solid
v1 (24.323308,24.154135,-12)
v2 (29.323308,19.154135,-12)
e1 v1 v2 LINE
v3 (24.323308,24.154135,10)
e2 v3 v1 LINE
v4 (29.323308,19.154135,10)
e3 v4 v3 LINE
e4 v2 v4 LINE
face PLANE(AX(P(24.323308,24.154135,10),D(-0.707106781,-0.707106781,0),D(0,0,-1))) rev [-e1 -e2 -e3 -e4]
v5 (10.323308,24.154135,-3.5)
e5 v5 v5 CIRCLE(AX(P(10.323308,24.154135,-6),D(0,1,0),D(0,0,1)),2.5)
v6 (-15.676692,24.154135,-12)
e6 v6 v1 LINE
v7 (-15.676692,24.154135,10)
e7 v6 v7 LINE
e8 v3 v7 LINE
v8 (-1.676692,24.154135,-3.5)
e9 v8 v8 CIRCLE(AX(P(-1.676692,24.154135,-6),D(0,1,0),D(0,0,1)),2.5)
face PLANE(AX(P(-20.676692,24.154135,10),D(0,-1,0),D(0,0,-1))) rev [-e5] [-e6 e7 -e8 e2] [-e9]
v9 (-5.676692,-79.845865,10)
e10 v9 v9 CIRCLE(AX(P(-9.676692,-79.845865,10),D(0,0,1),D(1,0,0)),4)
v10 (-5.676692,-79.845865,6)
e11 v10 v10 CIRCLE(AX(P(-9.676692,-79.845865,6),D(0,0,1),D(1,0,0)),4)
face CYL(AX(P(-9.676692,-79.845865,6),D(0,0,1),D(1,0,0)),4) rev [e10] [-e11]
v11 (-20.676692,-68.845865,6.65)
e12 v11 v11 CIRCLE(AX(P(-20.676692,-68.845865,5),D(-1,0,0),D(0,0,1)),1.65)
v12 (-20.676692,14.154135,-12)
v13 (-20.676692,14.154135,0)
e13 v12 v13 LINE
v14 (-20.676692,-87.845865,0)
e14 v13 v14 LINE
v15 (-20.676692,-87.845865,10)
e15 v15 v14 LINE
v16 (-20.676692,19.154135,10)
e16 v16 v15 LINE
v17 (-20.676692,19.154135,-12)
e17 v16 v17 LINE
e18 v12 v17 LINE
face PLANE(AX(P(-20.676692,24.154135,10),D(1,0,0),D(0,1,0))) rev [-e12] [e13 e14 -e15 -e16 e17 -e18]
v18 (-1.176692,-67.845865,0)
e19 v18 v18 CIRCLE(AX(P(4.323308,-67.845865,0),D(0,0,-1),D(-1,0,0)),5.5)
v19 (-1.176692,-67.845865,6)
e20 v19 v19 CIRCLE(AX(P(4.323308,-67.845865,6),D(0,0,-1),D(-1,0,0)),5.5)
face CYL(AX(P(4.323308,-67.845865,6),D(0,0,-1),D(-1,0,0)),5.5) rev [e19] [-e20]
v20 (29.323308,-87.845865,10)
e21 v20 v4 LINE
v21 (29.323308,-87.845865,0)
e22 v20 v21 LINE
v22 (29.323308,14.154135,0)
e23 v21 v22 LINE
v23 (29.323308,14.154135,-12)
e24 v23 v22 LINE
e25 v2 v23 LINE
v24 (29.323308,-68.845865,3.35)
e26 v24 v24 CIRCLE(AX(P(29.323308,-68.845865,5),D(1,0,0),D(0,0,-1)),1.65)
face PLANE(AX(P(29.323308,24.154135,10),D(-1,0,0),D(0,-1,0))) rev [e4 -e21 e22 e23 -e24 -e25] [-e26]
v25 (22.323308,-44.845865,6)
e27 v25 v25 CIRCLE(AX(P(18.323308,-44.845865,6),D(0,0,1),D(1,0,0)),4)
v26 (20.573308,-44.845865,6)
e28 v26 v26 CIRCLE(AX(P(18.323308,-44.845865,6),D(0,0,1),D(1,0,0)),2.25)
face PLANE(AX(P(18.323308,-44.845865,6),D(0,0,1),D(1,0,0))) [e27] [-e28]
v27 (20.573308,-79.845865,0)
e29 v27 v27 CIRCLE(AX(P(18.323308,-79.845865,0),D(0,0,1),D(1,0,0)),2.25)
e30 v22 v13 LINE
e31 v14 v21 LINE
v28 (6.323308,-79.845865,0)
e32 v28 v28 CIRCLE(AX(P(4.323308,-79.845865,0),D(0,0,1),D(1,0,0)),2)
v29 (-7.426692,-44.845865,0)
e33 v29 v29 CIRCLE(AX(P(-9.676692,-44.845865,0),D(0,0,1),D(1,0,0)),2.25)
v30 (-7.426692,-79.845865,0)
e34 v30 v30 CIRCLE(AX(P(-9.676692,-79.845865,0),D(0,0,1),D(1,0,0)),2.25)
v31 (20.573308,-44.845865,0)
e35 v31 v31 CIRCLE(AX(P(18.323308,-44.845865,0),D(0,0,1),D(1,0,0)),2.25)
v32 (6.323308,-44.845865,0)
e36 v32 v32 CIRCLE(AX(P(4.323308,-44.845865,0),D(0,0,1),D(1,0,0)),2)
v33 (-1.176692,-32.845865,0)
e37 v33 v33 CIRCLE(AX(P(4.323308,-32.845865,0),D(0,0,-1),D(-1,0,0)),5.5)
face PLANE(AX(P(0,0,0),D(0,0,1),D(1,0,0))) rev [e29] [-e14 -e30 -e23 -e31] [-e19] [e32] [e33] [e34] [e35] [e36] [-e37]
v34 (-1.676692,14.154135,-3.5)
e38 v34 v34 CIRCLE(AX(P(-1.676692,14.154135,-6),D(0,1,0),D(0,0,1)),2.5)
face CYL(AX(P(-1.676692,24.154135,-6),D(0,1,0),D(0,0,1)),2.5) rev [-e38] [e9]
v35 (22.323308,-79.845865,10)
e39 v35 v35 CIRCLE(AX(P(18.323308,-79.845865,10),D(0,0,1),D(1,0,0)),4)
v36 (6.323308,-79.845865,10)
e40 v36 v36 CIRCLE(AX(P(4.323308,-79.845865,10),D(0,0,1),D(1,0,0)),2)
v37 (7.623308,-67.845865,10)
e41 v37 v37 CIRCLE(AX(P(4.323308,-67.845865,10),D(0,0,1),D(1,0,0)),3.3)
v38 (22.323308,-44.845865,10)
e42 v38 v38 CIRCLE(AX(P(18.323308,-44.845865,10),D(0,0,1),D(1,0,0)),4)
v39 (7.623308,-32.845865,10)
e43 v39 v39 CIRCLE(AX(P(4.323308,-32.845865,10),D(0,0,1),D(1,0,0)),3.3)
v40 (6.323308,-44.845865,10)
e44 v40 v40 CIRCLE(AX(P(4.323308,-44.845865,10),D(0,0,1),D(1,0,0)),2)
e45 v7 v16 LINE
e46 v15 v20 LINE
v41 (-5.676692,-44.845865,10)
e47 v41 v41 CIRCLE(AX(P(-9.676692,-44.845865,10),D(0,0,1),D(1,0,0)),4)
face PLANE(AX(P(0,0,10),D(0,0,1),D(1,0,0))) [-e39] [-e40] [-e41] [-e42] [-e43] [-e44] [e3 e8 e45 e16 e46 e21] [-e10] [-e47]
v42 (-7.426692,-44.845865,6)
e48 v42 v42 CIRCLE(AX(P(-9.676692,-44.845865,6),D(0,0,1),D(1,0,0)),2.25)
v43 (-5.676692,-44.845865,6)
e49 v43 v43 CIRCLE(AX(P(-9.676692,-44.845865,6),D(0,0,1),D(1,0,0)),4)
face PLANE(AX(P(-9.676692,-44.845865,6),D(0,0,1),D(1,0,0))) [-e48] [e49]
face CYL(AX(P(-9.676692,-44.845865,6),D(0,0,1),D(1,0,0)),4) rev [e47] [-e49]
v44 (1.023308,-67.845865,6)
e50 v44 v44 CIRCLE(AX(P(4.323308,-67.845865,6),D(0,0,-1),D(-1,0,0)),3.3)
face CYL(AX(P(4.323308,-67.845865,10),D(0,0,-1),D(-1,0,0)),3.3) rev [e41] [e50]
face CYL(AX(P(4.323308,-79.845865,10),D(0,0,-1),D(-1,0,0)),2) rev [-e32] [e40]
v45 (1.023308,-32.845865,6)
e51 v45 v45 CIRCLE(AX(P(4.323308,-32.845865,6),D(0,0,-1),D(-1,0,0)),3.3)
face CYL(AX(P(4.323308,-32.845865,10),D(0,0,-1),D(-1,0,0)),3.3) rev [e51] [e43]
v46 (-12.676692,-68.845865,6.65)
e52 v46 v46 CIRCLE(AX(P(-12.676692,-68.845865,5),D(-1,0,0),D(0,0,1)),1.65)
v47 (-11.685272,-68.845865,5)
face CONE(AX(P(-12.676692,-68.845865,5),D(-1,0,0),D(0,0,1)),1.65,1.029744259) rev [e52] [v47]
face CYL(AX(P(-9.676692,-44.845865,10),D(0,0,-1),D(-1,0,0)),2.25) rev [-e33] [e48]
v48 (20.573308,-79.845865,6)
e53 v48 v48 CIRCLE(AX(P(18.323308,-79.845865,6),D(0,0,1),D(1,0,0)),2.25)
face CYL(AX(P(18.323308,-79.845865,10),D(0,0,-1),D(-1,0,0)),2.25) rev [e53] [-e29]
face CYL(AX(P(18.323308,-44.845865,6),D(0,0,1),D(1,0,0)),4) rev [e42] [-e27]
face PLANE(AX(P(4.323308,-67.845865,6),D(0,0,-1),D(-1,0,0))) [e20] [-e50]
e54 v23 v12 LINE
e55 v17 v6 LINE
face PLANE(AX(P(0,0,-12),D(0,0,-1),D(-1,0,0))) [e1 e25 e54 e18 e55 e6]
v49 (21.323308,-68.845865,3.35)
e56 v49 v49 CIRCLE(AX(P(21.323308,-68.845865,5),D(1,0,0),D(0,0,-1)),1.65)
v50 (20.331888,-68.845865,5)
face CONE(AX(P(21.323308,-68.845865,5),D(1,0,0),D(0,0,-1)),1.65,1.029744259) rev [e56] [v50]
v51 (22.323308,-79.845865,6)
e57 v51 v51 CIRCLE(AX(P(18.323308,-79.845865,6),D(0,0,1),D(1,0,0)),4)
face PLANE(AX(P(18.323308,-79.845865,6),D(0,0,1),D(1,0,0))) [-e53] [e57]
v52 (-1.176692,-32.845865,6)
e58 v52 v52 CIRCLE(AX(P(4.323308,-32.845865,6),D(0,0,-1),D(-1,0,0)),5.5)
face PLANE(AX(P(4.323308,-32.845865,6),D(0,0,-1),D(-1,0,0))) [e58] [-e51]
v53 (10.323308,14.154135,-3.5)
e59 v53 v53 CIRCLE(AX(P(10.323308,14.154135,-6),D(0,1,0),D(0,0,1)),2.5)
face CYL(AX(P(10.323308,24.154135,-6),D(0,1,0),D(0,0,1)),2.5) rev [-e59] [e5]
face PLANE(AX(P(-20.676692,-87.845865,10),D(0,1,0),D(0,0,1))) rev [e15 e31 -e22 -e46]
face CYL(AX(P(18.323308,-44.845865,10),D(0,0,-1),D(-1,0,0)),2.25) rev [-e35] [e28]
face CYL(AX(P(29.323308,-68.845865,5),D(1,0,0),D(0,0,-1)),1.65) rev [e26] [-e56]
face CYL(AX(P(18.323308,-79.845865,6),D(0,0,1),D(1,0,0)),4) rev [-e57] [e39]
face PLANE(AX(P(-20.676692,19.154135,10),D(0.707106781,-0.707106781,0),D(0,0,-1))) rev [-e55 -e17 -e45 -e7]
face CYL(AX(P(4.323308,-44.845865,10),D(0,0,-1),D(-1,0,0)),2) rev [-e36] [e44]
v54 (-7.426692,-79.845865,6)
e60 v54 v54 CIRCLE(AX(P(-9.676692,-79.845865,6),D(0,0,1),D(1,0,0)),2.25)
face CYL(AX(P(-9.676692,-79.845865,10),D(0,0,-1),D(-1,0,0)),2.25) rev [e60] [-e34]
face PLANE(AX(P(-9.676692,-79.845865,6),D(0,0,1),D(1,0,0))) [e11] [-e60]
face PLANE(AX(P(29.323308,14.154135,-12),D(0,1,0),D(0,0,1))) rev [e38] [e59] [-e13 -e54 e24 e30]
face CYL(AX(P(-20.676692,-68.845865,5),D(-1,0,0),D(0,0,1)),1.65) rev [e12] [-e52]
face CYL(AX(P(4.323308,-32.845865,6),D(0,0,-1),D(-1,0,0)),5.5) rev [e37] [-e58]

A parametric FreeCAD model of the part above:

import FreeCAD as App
import Part
import Sketcher
from FreeCAD import Vector


def edges_at(feature, points):
    """Names of the edges that pass closest to the given points."""
    edges = feature.Shape.Edges
    near = lambda p: min(range(len(edges)), key=lambda i: edges[i].distToShape(Part.Vertex(*p))[0])
    return sorted({f"Edge{near(p) + 1}" for p in points})

doc = App.newDocument("Part")
body = doc.addObject("PartDesign::Body", "Body")

sketch1 = body.newObject("Sketcher::SketchObject", "Sketch")
sketch1.AttachmentSupport = (doc.getObject("XY_Plane"), [""])
sketch1.MapMode = "FlatFace"
sketch1.addGeometry(Part.LineSegment(Vector(-20.7, 24.2, 0), Vector(-20.7, -87.8, 0)), False)
sketch1.addGeometry(Part.LineSegment(Vector(-20.7, -87.8, 0), Vector(29.3, -87.8, 0)), False)
sketch1.addGeometry(Part.LineSegment(Vector(29.3, -87.8, 0), Vector(29.3, 24.2, 0)), False)
sketch1.addGeometry(Part.LineSegment(Vector(29.3, 24.2, 0), Vector(-20.7, 24.2, 0)), False)
sketch1.addGeometry(Part.Circle(Vector(-9.7, -79.8, 0), Vector(0, 0, 1), 2.2), False)
sketch1.addGeometry(Part.Circle(Vector(4.3, -79.8, 0), Vector(0, 0, 1), 2), False)
sketch1.addGeometry(Part.Circle(Vector(18.3, -79.8, 0), Vector(0, 0, 1), 2.2), False)
sketch1.addGeometry(Part.Circle(Vector(4.3, -67.8, 0), Vector(0, 0, 1), 3.3), False)
sketch1.addGeometry(Part.Circle(Vector(-9.7, -44.8, 0), Vector(0, 0, 1), 2.2), False)
sketch1.addGeometry(Part.Circle(Vector(4.3, -44.8, 0), Vector(0, 0, 1), 2), False)
sketch1.addGeometry(Part.Circle(Vector(18.3, -44.8, 0), Vector(0, 0, 1), 2.2), False)
sketch1.addGeometry(Part.Circle(Vector(4.3, -32.8, 0), Vector(0, 0, 1), 3.3), False)
sketch1.addConstraint(Sketcher.Constraint("Coincident", 0, 2, 1, 1))
sketch1.addConstraint(Sketcher.Constraint("Coincident", 1, 2, 2, 1))
sketch1.addConstraint(Sketcher.Constraint("Coincident", 2, 2, 3, 1))
sketch1.addConstraint(Sketcher.Constraint("Coincident", 3, 2, 0, 1))
sketch1.addConstraint(Sketcher.Constraint("Vertical", 0))
sketch1.addConstraint(Sketcher.Constraint("Horizontal", 1))
sketch1.addConstraint(Sketcher.Constraint("Vertical", 2))
sketch1.addConstraint(Sketcher.Constraint("Horizontal", 3))
sketch1.addConstraint(Sketcher.Constraint("Equal", 4, 6))
sketch1.addConstraint(Sketcher.Constraint("Equal", 6, 8))
sketch1.addConstraint(Sketcher.Constraint("Equal", 5, 9))
sketch1.addConstraint(Sketcher.Constraint("Equal", 8, 10))
sketch1.addConstraint(Sketcher.Constraint("Equal", 7, 11))
sketch1.addConstraint(Sketcher.Constraint("Horizontal", 4, 3, 5, 3))
sketch1.addConstraint(Sketcher.Constraint("Horizontal", 5, 3, 6, 3))
sketch1.addConstraint(Sketcher.Constraint("Horizontal", 8, 3, 9, 3))
sketch1.addConstraint(Sketcher.Constraint("Horizontal", 9, 3, 10, 3))
sketch1.addConstraint(Sketcher.Constraint("Vertical", 5, 3, 7, 3))
sketch1.addConstraint(Sketcher.Constraint("Vertical", 4, 3, 8, 3))
sketch1.addConstraint(Sketcher.Constraint("Vertical", 7, 3, 9, 3))
sketch1.addConstraint(Sketcher.Constraint("Vertical", 6, 3, 10, 3))
sketch1.addConstraint(Sketcher.Constraint("Vertical", 9, 3, 11, 3))
sketch1.addConstraint(Sketcher.Constraint("Diameter", 5, 4.0))
sketch1.addConstraint(Sketcher.Constraint("Diameter", 4, 4.5))
sketch1.addConstraint(Sketcher.Constraint("Diameter", 7, 6.6))
sketch1.addConstraint(Sketcher.Constraint("DistanceX", 1, 1, 1, 2, 50.0))
sketch1.addConstraint(Sketcher.Constraint("DistanceY", 0, 2, 0, 1, 112.0))
sketch1.addConstraint(Sketcher.Constraint("DistanceX", 4, 3, 5, 3, 14.0))
sketch1.addConstraint(Sketcher.Constraint("DistanceX", 5, 3, 6, 3, 14.0))
sketch1.addConstraint(Sketcher.Constraint("DistanceY", 5, 3, 7, 3, 12.0))
sketch1.addConstraint(Sketcher.Constraint("DistanceY", 7, 3, 8, 3, 23.0))
sketch1.addConstraint(Sketcher.Constraint("DistanceY", 9, 3, 11, 3, 12.0))
sketch1.addConstraint(Sketcher.Constraint("DistanceX", 0, 2, 4, 3, 11.0))
sketch1.addConstraint(Sketcher.Constraint("DistanceY", 0, 2, 4, 3, 8.0))
sketch1.addConstraint(Sketcher.Constraint("DistanceX", 4, 3, -1, 1, 9.676692))
sketch1.addConstraint(Sketcher.Constraint("DistanceY", 4, 3, -1, 1, 79.845865))
pad1 = body.newObject("PartDesign::Pad", "Pad")
pad1.Profile = sketch1
pad1.Length = 10

sketch2 = body.newObject("Sketcher::SketchObject", "Sketch001")
sketch2.AttachmentSupport = (doc.getObject("XY_Plane"), [""])
sketch2.MapMode = "FlatFace"
sketch2.addGeometry(Part.Circle(Vector(4, -33, 0), Vector(0, 0, 1), 6), False)
sketch2.addGeometry(Part.Circle(Vector(4, -68, 0), Vector(0, 0, 1), 6), False)
sketch2.addConstraint(Sketcher.Constraint("Equal", 0, 1))
sketch2.addConstraint(Sketcher.Constraint("Vertical", 0, 3, 1, 3))
sketch2.addConstraint(Sketcher.Constraint("Diameter", 0, 11.0))
sketch2.addConstraint(Sketcher.Constraint("DistanceY", 1, 3, 0, 3, 35.0))
sketch2.addConstraint(Sketcher.Constraint("DistanceX", -1, 1, 0, 3, 4.323308))
sketch2.addConstraint(Sketcher.Constraint("DistanceY", 0, 3, -1, 1, 32.845865))
pocket1 = body.newObject("PartDesign::Pocket", "Pocket")
pocket1.Profile = sketch2
pocket1.Length = 6
pocket1.Reversed = True

sketch3 = body.newObject("Sketcher::SketchObject", "Sketch002")
sketch3.AttachmentSupport = (doc.getObject("XY_Plane"), [""])
sketch3.MapMode = "FlatFace"
sketch3.AttachmentOffset = App.Placement(Vector(0, 0, 10), App.Rotation())
sketch3.addGeometry(Part.Circle(Vector(-9.7, -44.8, 0), Vector(0, 0, 1), 4), False)
sketch3.addGeometry(Part.Circle(Vector(18.3, -44.8, 0), Vector(0, 0, 1), 4), False)
sketch3.addGeometry(Part.Circle(Vector(18.3, -79.8, 0), Vector(0, 0, 1), 4), False)
sketch3.addGeometry(Part.Circle(Vector(-9.7, -79.8, 0), Vector(0, 0, 1), 4), False)
sketch3.addConstraint(Sketcher.Constraint("Equal", 0, 1))
sketch3.addConstraint(Sketcher.Constraint("Equal", 1, 2))
sketch3.addConstraint(Sketcher.Constraint("Equal", 2, 3))
sketch3.addConstraint(Sketcher.Constraint("Horizontal", 0, 3, 1, 3))
sketch3.addConstraint(Sketcher.Constraint("Horizontal", 2, 3, 3, 3))
sketch3.addConstraint(Sketcher.Constraint("Vertical", 1, 3, 2, 3))
sketch3.addConstraint(Sketcher.Constraint("Vertical", 0, 3, 3, 3))
sketch3.addConstraint(Sketcher.Constraint("Diameter", 0, 8.0))
sketch3.addConstraint(Sketcher.Constraint("DistanceX", 0, 3, 1, 3, 28.0))
sketch3.addConstraint(Sketcher.Constraint("DistanceY", 2, 3, 1, 3, 35.0))
sketch3.addConstraint(Sketcher.Constraint("DistanceX", 0, 3, -1, 1, 9.676692))
sketch3.addConstraint(Sketcher.Constraint("DistanceY", 0, 3, -1, 1, 44.845865))
pocket2 = body.newObject("PartDesign::Pocket", "Pocket001")
pocket2.Profile = sketch3
pocket2.Length = 4

sketch4 = body.newObject("Sketcher::SketchObject", "Sketch003")
sketch4.AttachmentSupport = (doc.getObject("XY_Plane"), [""])
sketch4.MapMode = "FlatFace"
sketch4.addGeometry(Part.LineSegment(Vector(29, 24, 0), Vector(29, 14, 0)), False)
sketch4.addGeometry(Part.LineSegment(Vector(29, 14, 0), Vector(-21, 14, 0)), False)
sketch4.addGeometry(Part.LineSegment(Vector(-21, 14, 0), Vector(-21, 24, 0)), False)
sketch4.addGeometry(Part.LineSegment(Vector(-21, 24, 0), Vector(29, 24, 0)), False)
sketch4.addConstraint(Sketcher.Constraint("Coincident", 0, 2, 1, 1))
sketch4.addConstraint(Sketcher.Constraint("Coincident", 1, 2, 2, 1))
sketch4.addConstraint(Sketcher.Constraint("Coincident", 2, 2, 3, 1))
sketch4.addConstraint(Sketcher.Constraint("Coincident", 3, 2, 0, 1))
sketch4.addConstraint(Sketcher.Constraint("Vertical", 0))
sketch4.addConstraint(Sketcher.Constraint("Horizontal", 1))
sketch4.addConstraint(Sketcher.Constraint("Vertical", 2))
sketch4.addConstraint(Sketcher.Constraint("Horizontal", 3))
sketch4.addConstraint(Sketcher.Constraint("DistanceX", 1, 2, 1, 1, 50.0))
sketch4.addConstraint(Sketcher.Constraint("DistanceY", 0, 2, 0, 1, 10.0))
sketch4.addConstraint(Sketcher.Constraint("DistanceX", -1, 1, 0, 2, 29.323308))
sketch4.addConstraint(Sketcher.Constraint("DistanceY", -1, 1, 0, 2, 14.154135))
pad2 = body.newObject("PartDesign::Pad", "Pad001")
pad2.Profile = sketch4
pad2.Length = 12
pad2.Reversed = True

sketch5 = body.newObject("Sketcher::SketchObject", "Sketch004")
sketch5.AttachmentSupport = (doc.getObject("YZ_Plane"), [""])
sketch5.MapMode = "FlatFace"
sketch5.AttachmentOffset = App.Placement(Vector(0, 0, 29.323308), App.Rotation())
sketch5.addGeometry(Part.Circle(Vector(-68.8, 5, 0), Vector(0, 0, 1), 1.6), False)
sketch5.addConstraint(Sketcher.Constraint("Diameter", 0, 3.3))
sketch5.addConstraint(Sketcher.Constraint("DistanceY", -1, 1, 0, 3, 5.0))
sketch5.addConstraint(Sketcher.Constraint("DistanceX", 0, 3, -1, 1, 68.845865))
doc.recompute()
hole = body.newObject("PartDesign::Hole", "Hole")
hole.Profile = sketch5
hole.ThreadType = "None"
hole.Diameter = 3.3
hole.DepthType = "Dimension"
hole.Depth = 8
hole.DrillPoint = "Angled"
hole.DrillPointAngle = 118

sketch6 = body.newObject("Sketcher::SketchObject", "Sketch005")
sketch6.AttachmentSupport = (doc.getObject("YZ_Plane"), [""])
sketch6.MapMode = "FlatFace"
sketch6.AttachmentOffset = App.Placement(Vector(0, 0, -20.676692), App.Rotation())
sketch6.addGeometry(Part.Circle(Vector(-68.8, 5, 0), Vector(0, 0, 1), 1.6), False)
sketch6.addConstraint(Sketcher.Constraint("Diameter", 0, 3.3))
sketch6.addConstraint(Sketcher.Constraint("DistanceY", -1, 1, 0, 3, 5.0))
sketch6.addConstraint(Sketcher.Constraint("DistanceX", 0, 3, -1, 1, 68.845865))
doc.recompute()
hole2 = body.newObject("PartDesign::Hole", "Hole001")
hole2.Profile = sketch6
hole2.ThreadType = "None"
hole2.Diameter = 3.3
hole2.DepthType = "Dimension"
hole2.Depth = 8
hole2.DrillPoint = "Angled"
hole2.DrillPointAngle = 118
hole2.Reversed = True
doc.recompute()

chamfer = body.newObject("PartDesign::Chamfer", "Chamfer")
chamfer.Base = (hole2, edges_at(hole2, [(-20.677, 24.154, -1), (29.323, 24.154, -1)]))
chamfer.Size = 5

sketch7 = body.newObject("Sketcher::SketchObject", "Sketch006")
sketch7.AttachmentSupport = (doc.getObject("XZ_Plane"), [""])
sketch7.MapMode = "FlatFace"
sketch7.AttachmentOffset = App.Placement(Vector(0, 0, -24.154135), App.Rotation())
sketch7.addGeometry(Part.Circle(Vector(10.3, -6, 0), Vector(0, 0, 1), 2.5), False)
sketch7.addGeometry(Part.Circle(Vector(-1.7, -6, 0), Vector(0, 0, 1), 2.5), False)
sketch7.addConstraint(Sketcher.Constraint("Equal", 0, 1))
sketch7.addConstraint(Sketcher.Constraint("Horizontal", 0, 3, 1, 3))
sketch7.addConstraint(Sketcher.Constraint("Diameter", 0, 5.0))
sketch7.addConstraint(Sketcher.Constraint("DistanceY", 0, 3, -1, 1, 6.0))
sketch7.addConstraint(Sketcher.Constraint("DistanceX", 1, 3, 0, 3, 12.0))
sketch7.addConstraint(Sketcher.Constraint("DistanceX", -1, 1, 0, 3, 10.323308))
doc.recompute()
hole3 = body.newObject("PartDesign::Hole", "Hole002")
hole3.Profile = sketch7
hole3.ThreadType = "None"
hole3.Diameter = 5
hole3.DepthType = "Dimension"
hole3.Depth = 15
hole3.DrillPoint = "Angled"
hole3.DrillPointAngle = 118
hole3.Reversed = True

doc.recompute()
